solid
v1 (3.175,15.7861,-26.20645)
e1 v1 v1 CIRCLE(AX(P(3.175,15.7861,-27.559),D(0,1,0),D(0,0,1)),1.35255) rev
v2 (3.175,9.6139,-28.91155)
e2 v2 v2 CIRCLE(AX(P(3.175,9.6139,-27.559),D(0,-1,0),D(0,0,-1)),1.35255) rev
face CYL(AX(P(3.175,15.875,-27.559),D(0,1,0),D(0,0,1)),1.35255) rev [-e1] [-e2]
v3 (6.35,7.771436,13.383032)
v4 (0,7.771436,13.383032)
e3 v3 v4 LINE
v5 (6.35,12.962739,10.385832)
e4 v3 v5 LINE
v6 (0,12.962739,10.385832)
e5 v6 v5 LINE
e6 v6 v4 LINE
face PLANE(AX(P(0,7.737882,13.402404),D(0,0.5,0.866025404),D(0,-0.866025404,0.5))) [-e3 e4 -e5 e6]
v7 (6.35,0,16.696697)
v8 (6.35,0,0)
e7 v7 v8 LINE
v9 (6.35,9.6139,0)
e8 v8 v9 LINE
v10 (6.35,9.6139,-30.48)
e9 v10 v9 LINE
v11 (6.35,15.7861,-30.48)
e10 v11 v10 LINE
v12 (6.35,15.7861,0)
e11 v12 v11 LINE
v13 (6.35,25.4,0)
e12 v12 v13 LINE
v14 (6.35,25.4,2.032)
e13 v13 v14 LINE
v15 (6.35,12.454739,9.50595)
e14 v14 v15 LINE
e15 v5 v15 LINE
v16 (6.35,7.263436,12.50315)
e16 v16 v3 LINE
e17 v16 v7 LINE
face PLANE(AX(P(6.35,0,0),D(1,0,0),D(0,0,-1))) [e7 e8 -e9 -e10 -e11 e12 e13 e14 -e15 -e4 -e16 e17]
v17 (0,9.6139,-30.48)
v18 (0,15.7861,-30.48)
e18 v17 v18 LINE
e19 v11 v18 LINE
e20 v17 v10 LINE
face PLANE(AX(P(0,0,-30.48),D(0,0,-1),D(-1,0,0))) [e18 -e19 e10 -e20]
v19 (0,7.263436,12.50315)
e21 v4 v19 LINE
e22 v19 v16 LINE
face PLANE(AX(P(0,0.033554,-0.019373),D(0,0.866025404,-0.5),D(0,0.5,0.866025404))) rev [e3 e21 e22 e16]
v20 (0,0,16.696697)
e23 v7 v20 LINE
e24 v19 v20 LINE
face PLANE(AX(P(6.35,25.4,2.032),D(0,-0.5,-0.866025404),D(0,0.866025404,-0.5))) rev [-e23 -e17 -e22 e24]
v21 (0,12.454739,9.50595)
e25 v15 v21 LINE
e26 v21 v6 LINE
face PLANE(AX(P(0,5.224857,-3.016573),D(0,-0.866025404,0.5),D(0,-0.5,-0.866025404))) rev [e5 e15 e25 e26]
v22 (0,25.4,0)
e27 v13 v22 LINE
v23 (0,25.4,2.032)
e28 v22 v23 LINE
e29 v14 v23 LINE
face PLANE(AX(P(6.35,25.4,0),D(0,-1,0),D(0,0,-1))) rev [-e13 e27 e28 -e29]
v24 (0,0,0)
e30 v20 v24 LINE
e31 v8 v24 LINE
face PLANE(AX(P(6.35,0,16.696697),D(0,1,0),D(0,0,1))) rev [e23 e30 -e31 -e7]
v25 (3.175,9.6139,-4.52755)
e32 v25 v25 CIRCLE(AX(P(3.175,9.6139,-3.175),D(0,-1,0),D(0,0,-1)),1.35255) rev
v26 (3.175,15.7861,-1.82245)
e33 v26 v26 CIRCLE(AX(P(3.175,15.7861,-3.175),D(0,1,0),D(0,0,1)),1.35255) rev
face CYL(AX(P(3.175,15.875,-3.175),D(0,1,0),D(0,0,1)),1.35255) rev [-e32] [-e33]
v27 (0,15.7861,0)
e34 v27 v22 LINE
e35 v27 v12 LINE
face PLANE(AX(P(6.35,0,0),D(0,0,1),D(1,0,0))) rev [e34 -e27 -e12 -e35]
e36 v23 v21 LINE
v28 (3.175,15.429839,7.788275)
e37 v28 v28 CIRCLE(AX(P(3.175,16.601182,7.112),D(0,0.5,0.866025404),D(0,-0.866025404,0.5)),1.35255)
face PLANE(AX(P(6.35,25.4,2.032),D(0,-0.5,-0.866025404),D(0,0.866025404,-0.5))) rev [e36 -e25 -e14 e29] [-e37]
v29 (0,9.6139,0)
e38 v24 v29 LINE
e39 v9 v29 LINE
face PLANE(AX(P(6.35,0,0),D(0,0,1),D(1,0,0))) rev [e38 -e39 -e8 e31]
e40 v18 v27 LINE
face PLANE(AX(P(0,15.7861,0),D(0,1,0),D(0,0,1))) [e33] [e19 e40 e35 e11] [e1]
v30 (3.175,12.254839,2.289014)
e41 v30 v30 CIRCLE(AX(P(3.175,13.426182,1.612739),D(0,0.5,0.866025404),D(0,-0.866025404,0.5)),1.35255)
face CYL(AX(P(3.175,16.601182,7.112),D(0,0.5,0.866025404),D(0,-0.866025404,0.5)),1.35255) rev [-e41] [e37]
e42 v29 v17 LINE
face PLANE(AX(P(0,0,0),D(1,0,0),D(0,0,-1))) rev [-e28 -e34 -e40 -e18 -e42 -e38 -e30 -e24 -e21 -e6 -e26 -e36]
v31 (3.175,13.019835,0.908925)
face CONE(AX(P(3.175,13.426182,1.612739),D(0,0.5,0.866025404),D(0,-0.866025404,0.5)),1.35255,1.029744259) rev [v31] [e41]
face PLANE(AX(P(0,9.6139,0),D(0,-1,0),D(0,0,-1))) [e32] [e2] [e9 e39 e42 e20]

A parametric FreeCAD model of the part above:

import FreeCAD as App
import Part
import Sketcher
from FreeCAD import Vector
Q = App.Units.Quantity


def add_polygon(sketch, points):
    """Adds a closed chain of lines whose ends are joined by coincident constraints."""
    first, n = sketch.GeometryCount, len(points)
    for a, b in zip(points, points[1:] + points[:1]):
        sketch.addGeometry(Part.LineSegment(App.Vector(*a, 0), App.Vector(*b, 0)), False)
    for i in range(n):
        sketch.addConstraint(Sketcher.Constraint("Coincident", first + i, 2, first + (i + 1) % n, 1))

doc = App.newDocument("Part")
params = doc.addObject("Spreadsheet::Sheet", "Params")
for row, (alias, value) in enumerate([
    ("sketch1_width", "1 in"),
    ("sketch1_height", "0.08 in"),
    ("pad1_length", "0.25 in"),
    ("sketch2_width", "0.25 in"),
    ("pad2_length", "1.2 in"),
    ("sketch3_width", "0.25 in"),
    ("sketch3_height", "0.243 in"),
    ("pad3_length", "0.04 in"),
    ("hole_diameter", "0.1065 in"),
    ("hole_depth", "0.25 in"),
    ("hole2_diameter", "0.1065 in"),
    ("sketch6_height", "1.2 in"),
    ("sketch6_width", "0.25 in"),
    ("pocket1_length", "0.0035 in"),
    ("sketch7_height", "1.2 in"),
    ("sketch7_width", "0.25 in"),
    ("pocket2_length", "0.0035 in"),
    ("sketch8_width", "0.25 in"),
    ("sketch8_height", "0.04 in"),
    ("pocket3_length", "0.0035 in"),
    ("sketch9_width", "0.25 in"),
    ("sketch9_height", "0.04 in"),
    ("pocket4_length", "0.0035 in"),
], start=1):
    params.set(f"A{row}", alias)
    params.set(f"B{row}", "=" + value)
    params.setAlias(f"B{row}", alias)

body = doc.addObject("PartDesign::Body", "Body")

sketch1 = body.newObject("Sketcher::SketchObject", "Sketch")
sketch1.AttachmentSupport = (doc.getObject("YZ_Plane"), [""])
sketch1.MapMode = "FlatFace"
add_polygon(sketch1, [(0, 0), (25.4, 0), (25.4, 2), (0, 16.7)])
sketch1.addConstraint([
    Sketcher.Constraint("Horizontal", 0),
    Sketcher.Constraint("Vertical", 1),
    Sketcher.Constraint("Vertical", 3),
    Sketcher.Constraint("Coincident", 3, 2, -1, 1),
    Sketcher.Constraint("DistanceX", 0, 1, 0, 2, Q("1 in")),
    Sketcher.Constraint("Angle", 2, Q("150 deg")),
    Sketcher.Constraint("DistanceY", 1, 1, 1, 2, Q("0.08 in")),
])
sketch1.setExpression("Constraints[8]", "Params.sketch1_width")
sketch1.setExpression("Constraints[10]", "Params.sketch1_height")
pad1 = body.newObject("PartDesign::Pad", "Pad")
pad1.Profile = sketch1
pad1.setExpression("Length", "Params.pad1_length")

sketch2 = body.newObject("Sketcher::SketchObject", "Sketch001")
sketch2.AttachmentSupport = (doc.getObject("XY_Plane"), [""])
sketch2.MapMode = "FlatFace"
add_polygon(sketch2, [(6, 16), (6, 10), (0, 10), (0, 16)])
sketch2.addConstraint([
    Sketcher.Constraint("Vertical", 0),
    Sketcher.Constraint("Horizontal", 1),
    Sketcher.Constraint("Vertical", 2),
    Sketcher.Constraint("Horizontal", 3),
    Sketcher.Constraint("PointOnObject", 1, 2, -2),
    Sketcher.Constraint("Equal", 3, 0),
    Sketcher.Constraint("DistanceX", 1, 2, 1, 1, Q("0.25 in")),
    Sketcher.Constraint("DistanceY", -1, 1, 0, 2, Q("0.375 in")),
])
sketch2.setExpression("Constraints[10]", "Params.sketch2_width")
pad2 = body.newObject("PartDesign::Pad", "Pad001")
pad2.Profile = sketch2
pad2.setExpression("Length", "Params.pad2_length")
pad2.Reversed = True

sketch3 = body.newObject("Sketcher::SketchObject", "Sketch002")
sketch3.Placement = App.Placement(Vector(0, 7.229882, 12.522523), App.Rotation(Vector(1, 0, 0), Vector(0, 0.866025404, -0.5), Vector(0, 0.5, 0.866025404), "ZXY"))
add_polygon(sketch3, [(0, 6), (0, 0), (6, 0), (6, 6)])
sketch3.addConstraint([
    Sketcher.Constraint("Vertical", 0),
    Sketcher.Constraint("Horizontal", 1),
    Sketcher.Constraint("Vertical", 2),
    Sketcher.Constraint("Horizontal", 3),
    Sketcher.Constraint("PointOnObject", 0, 2, -2),
    Sketcher.Constraint("DistanceX", 1, 1, 1, 2, Q("0.25 in")),
    Sketcher.Constraint("DistanceY", 0, 2, 0, 1, Q("0.243 in")),
    Sketcher.Constraint("DistanceY", 0, 2, -1, 1, Q("0.050155 mm")),
])
sketch3.setExpression("Constraints[9]", "Params.sketch3_width")
sketch3.setExpression("Constraints[10]", "Params.sketch3_height")
pad3 = body.newObject("PartDesign::Pad", "Pad002")
pad3.Profile = sketch3
pad3.setExpression("Length", "Params.pad3_length")

sketch4 = body.newObject("Sketcher::SketchObject", "Sketch003")
sketch4.Placement = App.Placement(Vector(0, 7.229882, 12.522523), App.Rotation(Vector(1, 0, 0), Vector(0, 0.866025404, -0.5), Vector(0, 0.5, 0.866025404), "ZXY"))
sketch4.addGeometry(Part.Circle(Vector(3.2, 10.8, 0), Vector(0, 0, 1), 1.4), False)
sketch4.addConstraint([
    Sketcher.Constraint("Diameter", 0, Q("0.1065 in")),
    Sketcher.Constraint("DistanceX", -1, 1, 0, 3, Q("0.125 in")),
    Sketcher.Constraint("DistanceY", -1, 1, 0, 3, Q("10.821045 mm")),
])
doc.recompute()
hole = body.newObject("PartDesign::Hole", "Hole")
hole.Profile = sketch4
hole.ThreadType = "None"
hole.setExpression("Diameter", "Params.hole_diameter")
hole.DepthType = "Dimension"
hole.setExpression("Depth", "Params.hole_depth")
hole.DrillPoint = "Angled"
hole.DrillPointAngle = 118

sketch5 = body.newObject("Sketcher::SketchObject", "Sketch004")
sketch5.AttachmentSupport = (doc.getObject("XZ_Plane"), [""])
sketch5.MapMode = "FlatFace"
sketch5.AttachmentOffset = App.Placement(Vector(0, 0, -0.625 * 25.4), App.Rotation())
sketch5.addGeometry([
    Part.Circle(Vector(3.2, -3.2, 0), Vector(0, 0, 1), 1.4),
    Part.Circle(Vector(3.2, -27.6, 0), Vector(0, 0, 1), 1.4),
], False)
sketch5.addConstraint([
    Sketcher.Constraint("Equal", 0, 1),
    Sketcher.Constraint("Vertical", 0, 3, 1, 3),
    Sketcher.Constraint("Diameter", 0, Q("0.1065 in")),
    Sketcher.Constraint("DistanceY", 1, 3, 0, 3, Q("0.96 in")),
    Sketcher.Constraint("DistanceX", -1, 1, 0, 3, Q("0.125 in")),
    Sketcher.Constraint("DistanceY", 0, 3, -1, 1, Q("0.125 in")),
])
doc.recompute()
hole2 = body.newObject("PartDesign::Hole", "Hole001")
hole2.Profile = sketch5
hole2.ThreadType = "None"
hole2.setExpression("Diameter", "Params.hole2_diameter")
hole2.DepthType = "ThroughAll"
hole2.Reversed = True

sketch6 = body.newObject("Sketcher::SketchObject", "Sketch005")
sketch6.AttachmentSupport = (doc.getObject("XZ_Plane"), [""])
sketch6.MapMode = "FlatFace"
sketch6.AttachmentOffset = App.Placement(Vector(0, 0, -0.625 * 25.4), App.Rotation())
add_polygon(sketch6, [(0, -30), (0, 0), (6, 0), (6, -30)])
sketch6.addConstraint([
    Sketcher.Constraint("Vertical", 0),
    Sketcher.Constraint("Horizontal", 1),
    Sketcher.Constraint("Vertical", 2),
    Sketcher.Constraint("Horizontal", 3),
    Sketcher.Constraint("Coincident", 0, 2, -1, 1),
    Sketcher.Constraint("DistanceY", 0, 1, 0, 2, Q("1.2 in")),
    Sketcher.Constraint("DistanceX", 1, 1, 1, 2, Q("0.25 in")),
])
sketch6.setExpression("Constraints[9]", "Params.sketch6_height")
sketch6.setExpression("Constraints[10]", "Params.sketch6_width")
pocket1 = body.newObject("PartDesign::Pocket", "Pocket")
pocket1.Profile = sketch6
pocket1.setExpression("Length", "Params.pocket1_length")
pocket1.Reversed = True

sketch7 = body.newObject("Sketcher::SketchObject", "Sketch006")
sketch7.AttachmentSupport = (doc.getObject("XZ_Plane"), [""])
sketch7.MapMode = "FlatFace"
sketch7.AttachmentOffset = App.Placement(Vector(0, 0, -0.375 * 25.4), App.Rotation())
add_polygon(sketch7, [(0, 0), (0, -30), (6, -30), (6, 0)])
sketch7.addConstraint([
    Sketcher.Constraint("Vertical", 0),
    Sketcher.Constraint("Horizontal", 1),
    Sketcher.Constraint("Vertical", 2),
    Sketcher.Constraint("Horizontal", 3),
    Sketcher.Constraint("Coincident", 3, 2, -1, 1),
    Sketcher.Constraint("DistanceY", 0, 2, 0, 1, Q("1.2 in")),
    Sketcher.Constraint("DistanceX", 1, 1, 1, 2, Q("0.25 in")),
])
sketch7.setExpression("Constraints[9]", "Params.sketch7_height")
sketch7.setExpression("Constraints[10]", "Params.sketch7_width")
pocket2 = body.newObject("PartDesign::Pocket", "Pocket001")
pocket2.Profile = sketch7
pocket2.setExpression("Length", "Params.pocket2_length")

sketch8 = body.newObject("Sketcher::SketchObject", "Sketch007")
sketch8.Placement = App.Placement(Vector(0, 5.301847, -3.061023), App.Rotation(Vector(1, 0, 0), Vector(0, -0.5, -0.866025404), Vector(0, 0.866025404, -0.5), "ZXY"))
add_polygon(sketch8, [(0, -14.5), (0, -15.5), (6.3, -15.5), (6.3, -14.5)])
sketch8.addConstraint([
    Sketcher.Constraint("Vertical", 0),
    Sketcher.Constraint("Horizontal", 1),
    Sketcher.Constraint("Vertical", 2),
    Sketcher.Constraint("Horizontal", 3),
    Sketcher.Constraint("PointOnObject", 0, 2, -2),
    Sketcher.Constraint("DistanceX", 1, 1, 1, 2, Q("0.25 in")),
    Sketcher.Constraint("DistanceY", 0, 2, 0, 1, Q("0.04 in")),
    Sketcher.Constraint("DistanceY", 0, 2, -1, 1, Q("15.475764 mm")),
])
sketch8.setExpression("Constraints[9]", "Params.sketch8_width")
sketch8.setExpression("Constraints[10]", "Params.sketch8_height")
pocket3 = body.newObject("PartDesign::Pocket", "Pocket002")
pocket3.Profile = sketch8
pocket3.setExpression("Length", "Params.pocket3_length")

sketch9 = body.newObject("Sketcher::SketchObject", "Sketch008")
sketch9.Placement = App.Placement(Vector(0, -0.043435, 0.025077), App.Rotation(Vector(1, 0, 0), Vector(0, 0.5, 0.866025404), Vector(0, -0.866025404, 0.5), "ZXY"))
add_polygon(sketch9, [(0, 15.5), (0, 14.5), (6.3, 14.5), (6.3, 15.5)])
sketch9.addConstraint([
    Sketcher.Constraint("Vertical", 0),
    Sketcher.Constraint("Horizontal", 1),
    Sketcher.Constraint("Vertical", 2),
    Sketcher.Constraint("Horizontal", 3),
    Sketcher.Constraint("PointOnObject", 0, 2, -2),
    Sketcher.Constraint("DistanceX", 1, 1, 1, 2, Q("0.25 in")),
    Sketcher.Constraint("DistanceY", 0, 2, 0, 1, Q("0.04 in")),
    Sketcher.Constraint("DistanceY", -1, 1, 0, 2, Q("14.459764 mm")),
])
sketch9.setExpression("Constraints[9]", "Params.sketch9_width")
sketch9.setExpression("Constraints[10]", "Params.sketch9_height")
pocket4 = body.newObject("PartDesign::Pocket", "Pocket003")
pocket4.Profile = sketch9
pocket4.setExpression("Length", "Params.pocket4_length")

doc.recompute()
